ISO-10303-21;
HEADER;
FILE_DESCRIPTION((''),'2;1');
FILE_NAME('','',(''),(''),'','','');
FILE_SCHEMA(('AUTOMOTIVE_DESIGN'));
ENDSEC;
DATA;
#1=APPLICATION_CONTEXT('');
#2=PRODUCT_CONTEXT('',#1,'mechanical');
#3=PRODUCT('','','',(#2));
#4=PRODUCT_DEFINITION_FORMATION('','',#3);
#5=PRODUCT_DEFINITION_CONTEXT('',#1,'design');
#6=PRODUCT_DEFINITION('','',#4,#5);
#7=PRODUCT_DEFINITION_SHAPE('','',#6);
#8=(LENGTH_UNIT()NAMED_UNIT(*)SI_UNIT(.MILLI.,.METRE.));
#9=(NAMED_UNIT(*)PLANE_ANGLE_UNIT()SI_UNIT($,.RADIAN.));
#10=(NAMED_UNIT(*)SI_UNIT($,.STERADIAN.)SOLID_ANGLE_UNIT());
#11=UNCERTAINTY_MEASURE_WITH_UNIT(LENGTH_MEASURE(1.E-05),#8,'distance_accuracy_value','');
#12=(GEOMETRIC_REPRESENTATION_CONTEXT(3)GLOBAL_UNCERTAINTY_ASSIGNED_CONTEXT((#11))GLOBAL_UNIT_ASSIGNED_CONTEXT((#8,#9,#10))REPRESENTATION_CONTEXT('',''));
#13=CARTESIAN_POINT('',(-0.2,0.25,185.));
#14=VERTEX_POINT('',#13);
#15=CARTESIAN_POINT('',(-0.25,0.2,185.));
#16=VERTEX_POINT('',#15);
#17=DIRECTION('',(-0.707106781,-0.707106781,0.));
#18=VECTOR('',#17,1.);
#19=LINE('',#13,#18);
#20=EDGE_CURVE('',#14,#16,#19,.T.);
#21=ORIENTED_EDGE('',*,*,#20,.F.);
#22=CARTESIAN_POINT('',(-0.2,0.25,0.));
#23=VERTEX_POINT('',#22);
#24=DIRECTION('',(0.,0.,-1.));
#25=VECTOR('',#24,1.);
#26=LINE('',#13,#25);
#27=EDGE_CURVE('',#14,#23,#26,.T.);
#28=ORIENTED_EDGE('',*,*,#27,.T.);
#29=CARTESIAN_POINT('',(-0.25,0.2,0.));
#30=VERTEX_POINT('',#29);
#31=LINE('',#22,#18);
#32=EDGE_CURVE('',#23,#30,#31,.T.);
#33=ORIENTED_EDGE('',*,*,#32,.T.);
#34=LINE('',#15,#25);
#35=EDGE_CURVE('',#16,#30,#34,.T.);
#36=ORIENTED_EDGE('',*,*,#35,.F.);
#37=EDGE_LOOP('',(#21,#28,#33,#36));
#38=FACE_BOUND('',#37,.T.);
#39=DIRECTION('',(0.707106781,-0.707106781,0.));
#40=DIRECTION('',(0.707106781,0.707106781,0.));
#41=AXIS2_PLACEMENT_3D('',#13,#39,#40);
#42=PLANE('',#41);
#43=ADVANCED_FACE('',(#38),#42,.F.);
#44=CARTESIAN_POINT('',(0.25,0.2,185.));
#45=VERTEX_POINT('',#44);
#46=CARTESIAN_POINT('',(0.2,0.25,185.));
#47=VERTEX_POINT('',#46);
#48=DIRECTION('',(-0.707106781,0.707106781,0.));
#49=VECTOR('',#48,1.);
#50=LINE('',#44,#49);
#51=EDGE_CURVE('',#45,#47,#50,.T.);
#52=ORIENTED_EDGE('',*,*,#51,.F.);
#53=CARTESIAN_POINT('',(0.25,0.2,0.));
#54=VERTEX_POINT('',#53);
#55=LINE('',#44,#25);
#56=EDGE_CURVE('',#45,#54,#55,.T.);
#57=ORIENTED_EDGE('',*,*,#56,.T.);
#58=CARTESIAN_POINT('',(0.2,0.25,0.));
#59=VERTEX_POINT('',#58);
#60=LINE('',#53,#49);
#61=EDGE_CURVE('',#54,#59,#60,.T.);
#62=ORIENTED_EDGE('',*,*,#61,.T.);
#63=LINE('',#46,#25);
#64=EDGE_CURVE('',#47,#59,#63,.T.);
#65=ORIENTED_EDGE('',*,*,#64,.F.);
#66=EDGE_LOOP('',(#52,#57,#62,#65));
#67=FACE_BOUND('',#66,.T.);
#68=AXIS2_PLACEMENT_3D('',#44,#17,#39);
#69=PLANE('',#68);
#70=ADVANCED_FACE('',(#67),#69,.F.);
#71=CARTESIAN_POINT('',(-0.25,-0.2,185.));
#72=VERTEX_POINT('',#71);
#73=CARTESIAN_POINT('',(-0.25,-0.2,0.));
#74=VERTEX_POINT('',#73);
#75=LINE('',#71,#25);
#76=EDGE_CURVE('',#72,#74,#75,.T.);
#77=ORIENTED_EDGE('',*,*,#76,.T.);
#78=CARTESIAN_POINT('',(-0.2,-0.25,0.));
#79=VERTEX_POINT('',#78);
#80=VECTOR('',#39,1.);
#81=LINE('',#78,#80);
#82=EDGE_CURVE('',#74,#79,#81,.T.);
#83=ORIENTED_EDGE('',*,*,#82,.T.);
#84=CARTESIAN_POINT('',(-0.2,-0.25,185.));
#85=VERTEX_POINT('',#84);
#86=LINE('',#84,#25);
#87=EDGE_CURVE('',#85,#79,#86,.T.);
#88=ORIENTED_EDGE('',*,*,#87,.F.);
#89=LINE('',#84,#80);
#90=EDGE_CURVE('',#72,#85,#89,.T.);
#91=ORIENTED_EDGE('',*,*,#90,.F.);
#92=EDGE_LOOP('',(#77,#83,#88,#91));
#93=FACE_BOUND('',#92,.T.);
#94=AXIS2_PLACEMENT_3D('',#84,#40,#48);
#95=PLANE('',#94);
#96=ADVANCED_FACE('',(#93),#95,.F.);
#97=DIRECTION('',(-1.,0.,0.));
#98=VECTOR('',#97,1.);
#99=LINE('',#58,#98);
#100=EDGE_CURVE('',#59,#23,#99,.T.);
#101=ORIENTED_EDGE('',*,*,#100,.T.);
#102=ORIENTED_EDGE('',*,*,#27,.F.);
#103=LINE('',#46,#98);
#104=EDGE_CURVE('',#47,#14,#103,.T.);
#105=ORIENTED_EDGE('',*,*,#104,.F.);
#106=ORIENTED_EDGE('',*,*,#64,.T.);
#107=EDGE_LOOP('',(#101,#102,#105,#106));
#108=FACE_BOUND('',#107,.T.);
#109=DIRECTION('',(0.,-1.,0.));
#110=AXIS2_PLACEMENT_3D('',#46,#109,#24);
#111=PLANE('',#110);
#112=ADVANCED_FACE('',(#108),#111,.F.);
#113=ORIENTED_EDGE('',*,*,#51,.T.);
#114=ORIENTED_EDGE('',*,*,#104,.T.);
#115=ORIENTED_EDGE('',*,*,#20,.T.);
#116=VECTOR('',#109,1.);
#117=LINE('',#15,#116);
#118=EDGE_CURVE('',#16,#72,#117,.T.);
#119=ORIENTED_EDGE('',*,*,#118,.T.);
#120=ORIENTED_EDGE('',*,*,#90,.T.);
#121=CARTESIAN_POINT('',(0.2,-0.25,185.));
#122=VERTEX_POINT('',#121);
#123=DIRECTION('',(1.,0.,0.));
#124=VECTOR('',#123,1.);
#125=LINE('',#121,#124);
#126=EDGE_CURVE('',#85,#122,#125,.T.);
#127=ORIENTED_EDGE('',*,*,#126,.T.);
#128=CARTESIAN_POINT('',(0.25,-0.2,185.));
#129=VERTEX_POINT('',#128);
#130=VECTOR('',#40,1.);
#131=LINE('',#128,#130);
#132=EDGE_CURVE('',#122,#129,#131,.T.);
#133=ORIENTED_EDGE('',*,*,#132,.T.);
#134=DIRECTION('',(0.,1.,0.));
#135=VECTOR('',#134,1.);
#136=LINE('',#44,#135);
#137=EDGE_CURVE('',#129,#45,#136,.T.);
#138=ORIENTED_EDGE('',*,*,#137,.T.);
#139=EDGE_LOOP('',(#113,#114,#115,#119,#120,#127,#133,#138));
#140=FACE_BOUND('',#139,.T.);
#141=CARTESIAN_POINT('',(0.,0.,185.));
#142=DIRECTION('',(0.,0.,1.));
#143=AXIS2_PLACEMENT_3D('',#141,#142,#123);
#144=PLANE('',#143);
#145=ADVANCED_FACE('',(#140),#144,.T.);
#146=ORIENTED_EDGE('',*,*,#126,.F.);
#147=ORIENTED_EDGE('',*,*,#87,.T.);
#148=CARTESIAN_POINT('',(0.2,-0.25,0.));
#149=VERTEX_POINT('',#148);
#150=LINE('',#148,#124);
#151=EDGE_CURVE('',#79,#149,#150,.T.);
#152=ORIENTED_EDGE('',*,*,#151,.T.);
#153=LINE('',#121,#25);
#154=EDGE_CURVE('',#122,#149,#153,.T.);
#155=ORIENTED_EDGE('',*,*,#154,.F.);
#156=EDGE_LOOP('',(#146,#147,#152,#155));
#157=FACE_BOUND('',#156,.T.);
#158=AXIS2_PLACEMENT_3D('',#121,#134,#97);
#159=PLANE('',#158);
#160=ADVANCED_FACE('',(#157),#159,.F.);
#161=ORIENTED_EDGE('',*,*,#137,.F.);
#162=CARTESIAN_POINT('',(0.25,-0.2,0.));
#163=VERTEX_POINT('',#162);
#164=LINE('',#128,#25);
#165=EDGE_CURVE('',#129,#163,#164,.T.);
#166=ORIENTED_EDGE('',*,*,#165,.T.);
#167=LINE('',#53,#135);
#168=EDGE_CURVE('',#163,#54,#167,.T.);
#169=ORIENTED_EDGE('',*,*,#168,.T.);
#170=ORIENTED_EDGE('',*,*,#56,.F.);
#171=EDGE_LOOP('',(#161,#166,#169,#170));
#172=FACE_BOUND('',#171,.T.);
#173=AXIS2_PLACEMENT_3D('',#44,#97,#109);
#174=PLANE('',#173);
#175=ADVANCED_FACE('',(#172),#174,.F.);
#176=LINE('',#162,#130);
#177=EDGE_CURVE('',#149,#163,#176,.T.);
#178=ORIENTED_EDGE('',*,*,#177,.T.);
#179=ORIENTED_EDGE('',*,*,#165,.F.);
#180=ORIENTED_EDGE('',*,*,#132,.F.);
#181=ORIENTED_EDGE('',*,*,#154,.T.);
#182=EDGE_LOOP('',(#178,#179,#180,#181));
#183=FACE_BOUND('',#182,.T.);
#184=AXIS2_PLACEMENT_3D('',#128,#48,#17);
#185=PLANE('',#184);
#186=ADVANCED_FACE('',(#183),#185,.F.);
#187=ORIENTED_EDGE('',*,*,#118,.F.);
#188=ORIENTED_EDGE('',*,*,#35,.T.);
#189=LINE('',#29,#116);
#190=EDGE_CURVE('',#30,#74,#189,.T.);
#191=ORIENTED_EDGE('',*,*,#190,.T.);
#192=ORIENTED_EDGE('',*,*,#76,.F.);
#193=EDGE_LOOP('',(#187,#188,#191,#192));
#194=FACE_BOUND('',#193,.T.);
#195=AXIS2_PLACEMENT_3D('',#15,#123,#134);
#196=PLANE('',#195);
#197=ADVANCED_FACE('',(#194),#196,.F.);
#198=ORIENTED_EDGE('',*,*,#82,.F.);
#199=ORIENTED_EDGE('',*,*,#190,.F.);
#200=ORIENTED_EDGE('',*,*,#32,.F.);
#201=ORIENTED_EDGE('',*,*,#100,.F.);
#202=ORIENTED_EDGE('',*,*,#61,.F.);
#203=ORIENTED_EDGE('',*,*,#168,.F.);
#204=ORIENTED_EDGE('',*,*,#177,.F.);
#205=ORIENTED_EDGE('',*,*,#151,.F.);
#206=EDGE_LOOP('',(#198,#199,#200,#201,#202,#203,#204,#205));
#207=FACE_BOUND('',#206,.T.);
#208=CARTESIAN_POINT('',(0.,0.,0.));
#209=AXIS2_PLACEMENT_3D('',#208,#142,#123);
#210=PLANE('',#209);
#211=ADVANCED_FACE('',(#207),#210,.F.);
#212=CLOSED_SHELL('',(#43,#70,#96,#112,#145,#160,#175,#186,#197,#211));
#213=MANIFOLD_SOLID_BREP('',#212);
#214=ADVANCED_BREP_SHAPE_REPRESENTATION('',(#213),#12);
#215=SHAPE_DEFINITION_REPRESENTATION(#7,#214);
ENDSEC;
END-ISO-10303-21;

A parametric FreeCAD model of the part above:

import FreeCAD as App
import Part
import Sketcher
from FreeCAD import Vector
Q = App.Units.Quantity

doc = App.newDocument("Part")
body = doc.addObject("PartDesign::Body", "Body")

# Sketch on XY plane
sketch1 = body.newObject("Sketcher::SketchObject", "Sketch")
sketch1.AttachmentSupport = (doc.getObject("XY_Plane"), [""])
sketch1.MapMode = "FlatFace"
sketch1.addGeometry([
    Part.LineSegment(Vector(-0.2, 0.25, 0), Vector(-0.25, 0.2, 0)),  # 0
    Part.LineSegment(Vector(-0.25, 0.2, 0), Vector(-0.25, -0.2, 0)),  # 1
    Part.LineSegment(Vector(-0.25, -0.2, 0), Vector(-0.2, -0.25, 0)),  # 2
    Part.LineSegment(Vector(-0.2, -0.25, 0), Vector(0.2, -0.25, 0)),  # 3
    Part.LineSegment(Vector(0.2, -0.25, 0), Vector(0.25, -0.2, 0)),  # 4
    Part.LineSegment(Vector(0.25, -0.2, 0), Vector(0.25, 0.2, 0)),  # 5
    Part.LineSegment(Vector(0.25, 0.2, 0), Vector(0.2, 0.25, 0)),  # 6
    Part.LineSegment(Vector(0.2, 0.25, 0), Vector(-0.2, 0.25, 0)),  # 7
], False)
sketch1.addConstraint([
    Sketcher.Constraint("Coincident", 0, 2, 1, 1),
    Sketcher.Constraint("Coincident", 1, 2, 2, 1),
    Sketcher.Constraint("Coincident", 2, 2, 3, 1),
    Sketcher.Constraint("Coincident", 3, 2, 4, 1),
    Sketcher.Constraint("Coincident", 4, 2, 5, 1),
    Sketcher.Constraint("Coincident", 5, 2, 6, 1),
    Sketcher.Constraint("Coincident", 6, 2, 7, 1),
    Sketcher.Constraint("Coincident", 7, 2, 0, 1),
    Sketcher.Constraint("Vertical", 1),
    Sketcher.Constraint("Horizontal", 3),
    Sketcher.Constraint("Vertical", 5),
    Sketcher.Constraint("Horizontal", 7),
    Sketcher.Constraint("Symmetric", 0, 2, 4, 2, -1, 1),
    Sketcher.Constraint("Symmetric", 2, 2, 6, 2, -1, 1),
    Sketcher.Constraint("Perpendicular", 0, 2),
    Sketcher.Constraint("Perpendicular", 2, 4),
    Sketcher.Constraint("Perpendicular", 4, 6),
    Sketcher.Constraint("Horizontal", 1, 2, 4, 2),
    Sketcher.Constraint("Vertical", 3, 2, 6, 2),
    Sketcher.Constraint("Equal", 7, 1),
    Sketcher.Constraint("DistanceX", 3, 1, 3, 2, Q("0.4 mm")),
    Sketcher.Constraint("DistanceX", 1, 2, 4, 2, Q("0.5 mm")),
])
pad1 = body.newObject("PartDesign::Pad", "Pad")
pad1.Profile = sketch1
pad1.Length = 185

doc.recompute()
